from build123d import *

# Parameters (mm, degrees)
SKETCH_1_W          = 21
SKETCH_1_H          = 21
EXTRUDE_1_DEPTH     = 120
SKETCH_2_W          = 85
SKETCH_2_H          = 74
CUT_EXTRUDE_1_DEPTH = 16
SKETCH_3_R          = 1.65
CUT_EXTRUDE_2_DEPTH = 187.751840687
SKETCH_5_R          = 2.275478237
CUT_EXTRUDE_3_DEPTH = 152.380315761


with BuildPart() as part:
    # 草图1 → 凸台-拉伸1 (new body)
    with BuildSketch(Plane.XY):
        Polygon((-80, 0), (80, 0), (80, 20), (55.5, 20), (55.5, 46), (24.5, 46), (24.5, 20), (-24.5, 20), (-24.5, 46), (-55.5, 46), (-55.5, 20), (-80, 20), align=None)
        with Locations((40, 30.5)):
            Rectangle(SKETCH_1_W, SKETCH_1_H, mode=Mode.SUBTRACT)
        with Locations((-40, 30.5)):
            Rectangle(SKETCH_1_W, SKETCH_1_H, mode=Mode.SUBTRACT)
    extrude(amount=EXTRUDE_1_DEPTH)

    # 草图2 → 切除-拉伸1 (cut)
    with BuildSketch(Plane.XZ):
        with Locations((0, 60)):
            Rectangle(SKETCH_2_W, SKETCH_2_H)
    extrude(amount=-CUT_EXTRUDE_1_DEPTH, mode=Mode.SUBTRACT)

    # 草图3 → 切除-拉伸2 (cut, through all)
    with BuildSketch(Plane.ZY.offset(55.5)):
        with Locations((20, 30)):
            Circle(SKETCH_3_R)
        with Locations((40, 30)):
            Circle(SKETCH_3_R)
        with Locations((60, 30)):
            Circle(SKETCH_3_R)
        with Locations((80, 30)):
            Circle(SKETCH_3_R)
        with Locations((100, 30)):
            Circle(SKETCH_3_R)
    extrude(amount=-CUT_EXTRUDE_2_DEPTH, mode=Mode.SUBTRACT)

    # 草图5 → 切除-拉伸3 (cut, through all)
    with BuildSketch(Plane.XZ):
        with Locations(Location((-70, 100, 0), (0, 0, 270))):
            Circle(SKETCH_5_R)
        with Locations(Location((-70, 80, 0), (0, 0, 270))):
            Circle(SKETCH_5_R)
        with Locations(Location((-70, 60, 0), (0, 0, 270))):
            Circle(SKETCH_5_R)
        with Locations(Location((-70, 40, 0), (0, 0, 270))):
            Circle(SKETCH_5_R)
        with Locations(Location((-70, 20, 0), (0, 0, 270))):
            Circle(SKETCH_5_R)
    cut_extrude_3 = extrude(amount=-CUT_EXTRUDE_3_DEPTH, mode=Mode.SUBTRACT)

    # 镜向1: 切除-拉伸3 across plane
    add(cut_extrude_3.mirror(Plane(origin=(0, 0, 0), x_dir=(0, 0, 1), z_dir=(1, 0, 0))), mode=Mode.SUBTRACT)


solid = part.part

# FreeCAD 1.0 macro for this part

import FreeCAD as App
import Part
import Sketcher

V = App.Vector
Q = App.Units.Quantity

doc = App.newDocument("Part")
body = doc.addObject("PartDesign::Body", "Body")

# Sketch on XY plane
sketch1 = body.newObject("Sketcher::SketchObject", "Sketch")
sketch1.AttachmentSupport = (doc.getObject("XY_Plane"), [""])
sketch1.MapMode = "FlatFace"
sketch1.addGeometry(Part.LineSegment(V(-80, 0, 0), V(80, 0, 0)), False)
sketch1.addGeometry(Part.LineSegment(V(80, 0, 0), V(80, 20, 0)), False)
sketch1.addGeometry(Part.LineSegment(V(80, 20, 0), V(55.5, 20, 0)), False)
sketch1.addGeometry(Part.LineSegment(V(55.5, 20, 0), V(55.5, 46, 0)), False)
sketch1.addGeometry(Part.LineSegment(V(55.5, 46, 0), V(24.5, 46, 0)), False)
sketch1.addGeometry(Part.LineSegment(V(24.5, 46, 0), V(24.5, 20, 0)), False)
sketch1.addGeometry(Part.LineSegment(V(24.5, 20, 0), V(-24.5, 20, 0)), False)
sketch1.addGeometry(Part.LineSegment(V(-24.5, 20, 0), V(-24.5, 46, 0)), False)
sketch1.addGeometry(Part.LineSegment(V(-24.5, 46, 0), V(-55.5, 46, 0)), False)
sketch1.addGeometry(Part.LineSegment(V(-55.5, 46, 0), V(-55.5, 20, 0)), False)
sketch1.addGeometry(Part.LineSegment(V(-55.5, 20, 0), V(-80, 20, 0)), False)
sketch1.addGeometry(Part.LineSegment(V(-80, 20, 0), V(-80, 0, 0)), False)
sketch1.addGeometry(Part.LineSegment(V(-29.5, 20, 0), V(-50.5, 20, 0)), False)
sketch1.addGeometry(Part.LineSegment(V(-50.5, 20, 0), V(-50.5, 41, 0)), False)
sketch1.addGeometry(Part.LineSegment(V(-50.5, 41, 0), V(-29.5, 41, 0)), False)
sketch1.addGeometry(Part.LineSegment(V(-29.5, 41, 0), V(-29.5, 20, 0)), False)
sketch1.addGeometry(Part.LineSegment(V(50.5, 20, 0), V(29.5, 20, 0)), False)
sketch1.addGeometry(Part.LineSegment(V(29.5, 20, 0), V(29.5, 41, 0)), False)
sketch1.addGeometry(Part.LineSegment(V(29.5, 41, 0), V(50.5, 41, 0)), False)
sketch1.addGeometry(Part.LineSegment(V(50.5, 41, 0), V(50.5, 20, 0)), False)
sketch1.addConstraint(Sketcher.Constraint("Coincident", 0, 2, 1, 1))
sketch1.addConstraint(Sketcher.Constraint("Coincident", 1, 2, 2, 1))
sketch1.addConstraint(Sketcher.Constraint("Coincident", 2, 2, 3, 1))
sketch1.addConstraint(Sketcher.Constraint("Coincident", 3, 2, 4, 1))
sketch1.addConstraint(Sketcher.Constraint("Coincident", 4, 2, 5, 1))
sketch1.addConstraint(Sketcher.Constraint("Coincident", 5, 2, 6, 1))
sketch1.addConstraint(Sketcher.Constraint("Coincident", 6, 2, 7, 1))
sketch1.addConstraint(Sketcher.Constraint("Coincident", 7, 2, 8, 1))
sketch1.addConstraint(Sketcher.Constraint("Coincident", 8, 2, 9, 1))
sketch1.addConstraint(Sketcher.Constraint("Coincident", 9, 2, 10, 1))
sketch1.addConstraint(Sketcher.Constraint("Coincident", 10, 2, 11, 1))
sketch1.addConstraint(Sketcher.Constraint("Coincident", 11, 2, 0, 1))
sketch1.addConstraint(Sketcher.Constraint("Coincident", 12, 2, 13, 1))
sketch1.addConstraint(Sketcher.Constraint("Coincident", 13, 2, 14, 1))
sketch1.addConstraint(Sketcher.Constraint("Coincident", 14, 2, 15, 1))
sketch1.addConstraint(Sketcher.Constraint("Coincident", 15, 2, 12, 1))
sketch1.addConstraint(Sketcher.Constraint("Coincident", 16, 2, 17, 1))
sketch1.addConstraint(Sketcher.Constraint("Coincident", 17, 2, 18, 1))
sketch1.addConstraint(Sketcher.Constraint("Coincident", 18, 2, 19, 1))
sketch1.addConstraint(Sketcher.Constraint("Coincident", 19, 2, 16, 1))
sketch1.addConstraint(Sketcher.Constraint("Horizontal", 0))
sketch1.addConstraint(Sketcher.Constraint("Vertical", 1))
sketch1.addConstraint(Sketcher.Constraint("Horizontal", 2))
sketch1.addConstraint(Sketcher.Constraint("Vertical", 3))
sketch1.addConstraint(Sketcher.Constraint("Horizontal", 4))
sketch1.addConstraint(Sketcher.Constraint("Vertical", 5))
sketch1.addConstraint(Sketcher.Constraint("Horizontal", 6))
sketch1.addConstraint(Sketcher.Constraint("Vertical", 7))
sketch1.addConstraint(Sketcher.Constraint("Horizontal", 8))
sketch1.addConstraint(Sketcher.Constraint("Vertical", 9))
sketch1.addConstraint(Sketcher.Constraint("Horizontal", 10))
sketch1.addConstraint(Sketcher.Constraint("Vertical", 11))
sketch1.addConstraint(Sketcher.Constraint("Horizontal", 12))
sketch1.addConstraint(Sketcher.Constraint("Vertical", 13))
sketch1.addConstraint(Sketcher.Constraint("Horizontal", 14))
sketch1.addConstraint(Sketcher.Constraint("Vertical", 15))
sketch1.addConstraint(Sketcher.Constraint("Horizontal", 16))
sketch1.addConstraint(Sketcher.Constraint("Vertical", 17))
sketch1.addConstraint(Sketcher.Constraint("Horizontal", 18))
sketch1.addConstraint(Sketcher.Constraint("Vertical", 19))
sketch1.addConstraint(Sketcher.Constraint("Symmetric", 0, 2, 11, 2, -1, 1))
sketch1.addConstraint(Sketcher.Constraint("Symmetric", 4, 2, 7, 2, -2))
sketch1.addConstraint(Sketcher.Constraint("Symmetric", 2, 2, 9, 2, -2))
sketch1.addConstraint(Sketcher.Constraint("Symmetric", 15, 2, 16, 2, -2))
sketch1.addConstraint(Sketcher.Constraint("Symmetric", 13, 2, 18, 2, -2))
sketch1.addConstraint(Sketcher.Constraint("Horizontal", 2, 2, 5, 2))
sketch1.addConstraint(Sketcher.Constraint("Horizontal", 10, 2, 12, 2))
sketch1.addConstraint(Sketcher.Constraint("Equal", 18, 13))
sketch1.addConstraint(Sketcher.Constraint("DistanceX", 0, 1, 0, 2, Q("160 mm")))
sketch1.addConstraint(Sketcher.Constraint("DistanceX", 4, 2, 4, 1, Q("31 mm")))
sketch1.addConstraint(Sketcher.Constraint("DistanceX", 6, 2, 6, 1, Q("49 mm")))
sketch1.addConstraint(Sketcher.Constraint("DistanceX", 12, 2, 12, 1, Q("21 mm")))
sketch1.addConstraint(Sketcher.Constraint("DistanceY", 1, 1, 1, 2, Q("20 mm")))
sketch1.addConstraint(Sketcher.Constraint("DistanceY", 3, 1, 3, 2, Q("26 mm")))
sketch1.addConstraint(Sketcher.Constraint("DistanceX", 9, 2, 12, 2, Q("5 mm")))
pad1 = body.newObject("PartDesign::Pad", "Pad")
pad1.Profile = sketch1
pad1.Length = 120

# Sketch on XZ plane
sketch2 = body.newObject("Sketcher::SketchObject", "Sketch001")
sketch2.AttachmentSupport = (doc.getObject("XZ_Plane"), [""])
sketch2.MapMode = "FlatFace"
sketch2.addGeometry(Part.LineSegment(V(-42.5, 97, 0), V(-42.5, 23, 0)), False)
sketch2.addGeometry(Part.LineSegment(V(-42.5, 23, 0), V(42.5, 23, 0)), False)
sketch2.addGeometry(Part.LineSegment(V(42.5, 23, 0), V(42.5, 97, 0)), False)
sketch2.addGeometry(Part.LineSegment(V(42.5, 97, 0), V(-42.5, 97, 0)), False)
sketch2.addConstraint(Sketcher.Constraint("Coincident", 0, 2, 1, 1))
sketch2.addConstraint(Sketcher.Constraint("Coincident", 1, 2, 2, 1))
sketch2.addConstraint(Sketcher.Constraint("Coincident", 2, 2, 3, 1))
sketch2.addConstraint(Sketcher.Constraint("Coincident", 3, 2, 0, 1))
sketch2.addConstraint(Sketcher.Constraint("Vertical", 0))
sketch2.addConstraint(Sketcher.Constraint("Horizontal", 1))
sketch2.addConstraint(Sketcher.Constraint("Vertical", 2))
sketch2.addConstraint(Sketcher.Constraint("Horizontal", 3))
sketch2.addConstraint(Sketcher.Constraint("DistanceX", 1, 1, 1, 2, Q("85 mm")))
sketch2.addConstraint(Sketcher.Constraint("DistanceY", 0, 2, 0, 1, Q("74 mm")))
sketch2.addConstraint(Sketcher.Constraint("DistanceY", -1, 1, 0, 2, Q("23 mm")))
sketch2.addConstraint(Sketcher.Constraint("DistanceX", 0, 2, -1, 1, Q("42.5 mm")))
pocket1 = body.newObject("PartDesign::Pocket", "Pocket")
pocket1.Profile = sketch2
pocket1.Length = 16

# Sketch on YZ plane
sketch3 = body.newObject("Sketcher::SketchObject", "Sketch002")
sketch3.AttachmentSupport = (doc.getObject("YZ_Plane"), [""])
sketch3.MapMode = "FlatFace"
sketch3.AttachmentOffset = App.Placement(V(0, 0, -55.5), App.Rotation())
sketch3.addGeometry(Part.Circle(V(30, 20, 0), V(0, 0, 1), 1.65), False)
sketch3.addGeometry(Part.Circle(V(30, 40, 0), V(0, 0, 1), 1.65), False)
sketch3.addGeometry(Part.Circle(V(30, 60, 0), V(0, 0, 1), 1.65), False)
sketch3.addGeometry(Part.Circle(V(30, 80, 0), V(0, 0, 1), 1.65), False)
sketch3.addGeometry(Part.Circle(V(30, 100, 0), V(0, 0, 1), 1.65), False)
sketch3.addConstraint(Sketcher.Constraint("Equal", 0, 1))
sketch3.addConstraint(Sketcher.Constraint("Equal", 1, 2))
sketch3.addConstraint(Sketcher.Constraint("Equal", 2, 3))
sketch3.addConstraint(Sketcher.Constraint("Equal", 3, 4))
sketch3.addConstraint(Sketcher.Constraint("Vertical", 0, 3, 1, 3))
sketch3.addConstraint(Sketcher.Constraint("Vertical", 1, 3, 2, 3))
sketch3.addConstraint(Sketcher.Constraint("Vertical", 2, 3, 3, 3))
sketch3.addConstraint(Sketcher.Constraint("Vertical", 3, 3, 4, 3))
sketch3.addConstraint(Sketcher.Constraint("Diameter", 0, Q("3.3 mm")))
sketch3.addConstraint(Sketcher.Constraint("DistanceX", -1, 1, 0, 3, Q("30 mm")))
sketch3.addConstraint(Sketcher.Constraint("DistanceY", -1, 1, 0, 3, Q("20 mm")))
sketch3.addConstraint(Sketcher.Constraint("DistanceY", -1, 1, 1, 3, Q("40 mm")))
sketch3.addConstraint(Sketcher.Constraint("DistanceY", -1, 1, 2, 3, Q("60 mm")))
sketch3.addConstraint(Sketcher.Constraint("DistanceY", -1, 1, 3, 3, Q("80 mm")))
sketch3.addConstraint(Sketcher.Constraint("DistanceY", -1, 1, 4, 3, Q("100 mm")))
pocket2 = body.newObject("PartDesign::Pocket", "Pocket001")
pocket2.Profile = sketch3
pocket2.Type = "ThroughAll"
pocket2.Reversed = True

# Sketch on XZ plane
sketch4 = body.newObject("Sketcher::SketchObject", "Sketch003")
sketch4.AttachmentSupport = (doc.getObject("XZ_Plane"), [""])
sketch4.MapMode = "FlatFace"
sketch4.addGeometry(Part.Circle(V(-70, 100, 0), V(0, 0, 1), 2.275478), False)
sketch4.addGeometry(Part.Circle(V(-70, 80, 0), V(0, 0, 1), 2.275478), False)
sketch4.addGeometry(Part.Circle(V(-70, 60, 0), V(0, 0, 1), 2.275478), False)
sketch4.addGeometry(Part.Circle(V(-70, 40, 0), V(0, 0, 1), 2.275478), False)
sketch4.addGeometry(Part.Circle(V(-70, 20, 0), V(0, 0, 1), 2.275478), False)
sketch4.addConstraint(Sketcher.Constraint("Equal", 0, 1))
sketch4.addConstraint(Sketcher.Constraint("Equal", 1, 2))
sketch4.addConstraint(Sketcher.Constraint("Equal", 2, 3))
sketch4.addConstraint(Sketcher.Constraint("Equal", 3, 4))
sketch4.addConstraint(Sketcher.Constraint("Vertical", 0, 3, 1, 3))
sketch4.addConstraint(Sketcher.Constraint("Vertical", 1, 3, 2, 3))
sketch4.addConstraint(Sketcher.Constraint("Vertical", 2, 3, 3, 3))
sketch4.addConstraint(Sketcher.Constraint("Vertical", 3, 3, 4, 3))
sketch4.addConstraint(Sketcher.Constraint("DistanceX", 0, 3, -1, 1, Q("70 mm")))
sketch4.addConstraint(Sketcher.Constraint("DistanceY", -1, 1, 0, 3, Q("100 mm")))
sketch4.addConstraint(Sketcher.Constraint("DistanceY", -1, 1, 1, 3, Q("80 mm")))
sketch4.addConstraint(Sketcher.Constraint("DistanceY", -1, 1, 2, 3, Q("60 mm")))
sketch4.addConstraint(Sketcher.Constraint("DistanceY", -1, 1, 3, 3, Q("40 mm")))
sketch4.addConstraint(Sketcher.Constraint("DistanceY", -1, 1, 4, 3, Q("20 mm")))
sketch4.addConstraint(Sketcher.Constraint("Diameter", 0, Q("4.550956 mm")))
pocket3 = body.newObject("PartDesign::Pocket", "Pocket002")
pocket3.Profile = sketch4
pocket3.Type = "ThroughAll"
doc.recompute()

mirrored = body.newObject("PartDesign::Mirrored", "Mirrored")
mirrored.Originals = [pocket3]
mirrored.MirrorPlane = (doc.getObject("YZ_Plane"), [""])
body.Tip = mirrored

doc.recompute()
